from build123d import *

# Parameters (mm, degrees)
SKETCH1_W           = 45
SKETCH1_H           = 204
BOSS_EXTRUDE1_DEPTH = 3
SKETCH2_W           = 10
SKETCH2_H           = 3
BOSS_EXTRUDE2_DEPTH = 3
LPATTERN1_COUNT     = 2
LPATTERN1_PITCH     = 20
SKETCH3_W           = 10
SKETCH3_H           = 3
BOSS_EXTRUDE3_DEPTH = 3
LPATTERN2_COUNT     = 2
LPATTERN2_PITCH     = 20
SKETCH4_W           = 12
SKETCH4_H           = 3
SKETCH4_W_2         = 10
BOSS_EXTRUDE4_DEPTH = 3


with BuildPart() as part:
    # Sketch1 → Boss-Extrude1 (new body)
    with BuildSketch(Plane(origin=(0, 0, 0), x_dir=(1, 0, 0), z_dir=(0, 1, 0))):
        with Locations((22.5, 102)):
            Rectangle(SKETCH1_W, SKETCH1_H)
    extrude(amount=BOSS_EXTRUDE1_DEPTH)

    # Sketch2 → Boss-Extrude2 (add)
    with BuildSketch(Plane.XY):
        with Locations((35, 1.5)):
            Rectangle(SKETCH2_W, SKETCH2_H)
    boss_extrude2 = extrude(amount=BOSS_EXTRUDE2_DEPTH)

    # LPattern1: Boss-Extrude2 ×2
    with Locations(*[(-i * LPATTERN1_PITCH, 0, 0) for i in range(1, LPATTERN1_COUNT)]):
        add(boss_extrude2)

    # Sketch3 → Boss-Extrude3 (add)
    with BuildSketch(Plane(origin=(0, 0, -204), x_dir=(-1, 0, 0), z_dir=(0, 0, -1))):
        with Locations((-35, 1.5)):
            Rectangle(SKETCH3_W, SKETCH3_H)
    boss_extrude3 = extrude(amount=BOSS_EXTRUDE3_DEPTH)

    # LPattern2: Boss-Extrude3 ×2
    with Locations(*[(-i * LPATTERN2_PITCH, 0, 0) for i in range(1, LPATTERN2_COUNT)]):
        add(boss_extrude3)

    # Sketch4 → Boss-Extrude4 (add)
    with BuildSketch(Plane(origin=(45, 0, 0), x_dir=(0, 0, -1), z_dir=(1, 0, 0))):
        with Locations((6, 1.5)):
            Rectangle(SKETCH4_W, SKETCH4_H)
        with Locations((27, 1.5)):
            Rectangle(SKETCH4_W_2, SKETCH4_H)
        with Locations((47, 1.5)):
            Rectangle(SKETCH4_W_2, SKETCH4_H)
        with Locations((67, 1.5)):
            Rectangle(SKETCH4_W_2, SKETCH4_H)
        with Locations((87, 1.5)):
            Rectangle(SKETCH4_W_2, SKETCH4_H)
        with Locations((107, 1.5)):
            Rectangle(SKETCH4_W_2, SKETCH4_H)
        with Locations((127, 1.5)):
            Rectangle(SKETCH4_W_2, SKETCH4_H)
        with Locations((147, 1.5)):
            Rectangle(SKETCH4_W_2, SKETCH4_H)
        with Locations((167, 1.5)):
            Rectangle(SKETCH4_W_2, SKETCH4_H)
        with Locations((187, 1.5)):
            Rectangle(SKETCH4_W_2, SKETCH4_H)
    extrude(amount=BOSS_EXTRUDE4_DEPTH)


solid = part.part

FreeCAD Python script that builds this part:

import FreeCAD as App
import Part
import Sketcher

V = App.Vector


def add_polygon(sketch, points):
    """Adds a closed chain of lines whose ends are joined by coincident constraints."""
    first, n = sketch.GeometryCount, len(points)
    for a, b in zip(points, points[1:] + points[:1]):
        sketch.addGeometry(Part.LineSegment(App.Vector(*a, 0), App.Vector(*b, 0)), False)
    for i in range(n):
        sketch.addConstraint(Sketcher.Constraint("Coincident", first + i, 2, first + (i + 1) % n, 1))

doc = App.newDocument("Part")
params = doc.addObject("Spreadsheet::Sheet", "Params")
for row, (alias, value) in enumerate([
    ("sketch1_width", "45 mm"),
    ("sketch1_height", "204 mm"),
    ("pad1_length", "3 mm"),
    ("sketch2_width", "10 mm"),
    ("sketch2_height", "3 mm"),
    ("pad2_length", "3 mm"),
    ("linearpattern_pitch", "20 mm"),
    ("sketch3_width", "10 mm"),
    ("sketch3_height", "3 mm"),
    ("pad3_length", "3 mm"),
    ("linearpattern2_pitch", "20 mm"),
    ("sketch4_width", "3 mm"),
    ("sketch4_height", "12 mm"),
    ("sketch4_height2", "10 mm"),
    ("pad4_length", "3 mm"),
], start=1):
    params.set(f"A{row}", alias)
    params.set(f"B{row}", "=" + value)
    params.setAlias(f"B{row}", alias)

body = doc.addObject("PartDesign::Body", "Body")

sketch1 = doc.addObject("Sketcher::SketchObject", "Sketch")
body.addObject(sketch1)
sketch1.AttachmentSupport = (doc.XZ_Plane, [""])
sketch1.MapMode = "FlatFace"
add_polygon(sketch1, [(0, -204), (0, 0), (45, 0), (45, -204)])
sketch1.addConstraint([
    Sketcher.Constraint("Vertical", 0),
    Sketcher.Constraint("Horizontal", 1),
    Sketcher.Constraint("Vertical", 2),
    Sketcher.Constraint("Horizontal", 3),
    Sketcher.Constraint("Coincident", 0, 2, -1, 1),
    Sketcher.Constraint("DistanceX", 1, 1, 1, 2, 45.0),
    Sketcher.Constraint("DistanceY", 0, 1, 0, 2, 204.0),
])
sketch1.setExpression("Constraints[9]", "Params.sketch1_width")
sketch1.setExpression("Constraints[10]", "Params.sketch1_height")
pad1 = doc.addObject("PartDesign::Pad", "Pad")
body.addObject(pad1)
pad1.Profile = sketch1
pad1.setExpression("Length", "Params.pad1_length")
pad1.Reversed = True

sketch2 = doc.addObject("Sketcher::SketchObject", "Sketch001")
body.addObject(sketch2)
sketch2.AttachmentSupport = (doc.XY_Plane, [""])
sketch2.MapMode = "FlatFace"
add_polygon(sketch2, [(30, 3), (30, 0), (40, 0), (40, 3)])
sketch2.addConstraint([
    Sketcher.Constraint("Vertical", 0),
    Sketcher.Constraint("Horizontal", 1),
    Sketcher.Constraint("Vertical", 2),
    Sketcher.Constraint("Horizontal", 3),
    Sketcher.Constraint("PointOnObject", 0, 2, -1),
    Sketcher.Constraint("DistanceX", 1, 1, 1, 2, 10.0),
    Sketcher.Constraint("DistanceY", 0, 2, 0, 1, 3.0),
    Sketcher.Constraint("DistanceX", -1, 1, 0, 2, 30.0),
])
sketch2.setExpression("Constraints[9]", "Params.sketch2_width")
sketch2.setExpression("Constraints[10]", "Params.sketch2_height")
pad2 = doc.addObject("PartDesign::Pad", "Pad001")
body.addObject(pad2)
pad2.Profile = sketch2
pad2.setExpression("Length", "Params.pad2_length")
doc.recompute()

linearpattern = doc.addObject("PartDesign::LinearPattern", "LinearPattern")
body.addObject(linearpattern)
linearpattern.Originals = [pad2]
linearpattern.Direction = (doc.X_Axis, [""])
linearpattern.Mode = "offset"
linearpattern.setExpression("Offset", "Params.linearpattern_pitch")
linearpattern.Occurrences = 2
linearpattern.Reversed = True
body.Tip = linearpattern

sketch3 = doc.addObject("Sketcher::SketchObject", "Sketch002")
body.addObject(sketch3)
sketch3.AttachmentSupport = (doc.XY_Plane, [""])
sketch3.MapMode = "FlatFace"
sketch3.AttachmentOffset = App.Placement(V(0, 0, -204), App.Rotation())
add_polygon(sketch3, [(40, 3), (40, 0), (30, 0), (30, 3)])
sketch3.addConstraint([
    Sketcher.Constraint("Vertical", 0),
    Sketcher.Constraint("Horizontal", 1),
    Sketcher.Constraint("Vertical", 2),
    Sketcher.Constraint("Horizontal", 3),
    Sketcher.Constraint("PointOnObject", 0, 2, -1),
    Sketcher.Constraint("DistanceX", 1, 2, 1, 1, 10.0),
    Sketcher.Constraint("DistanceY", 0, 2, 0, 1, 3.0),
    Sketcher.Constraint("DistanceX", -1, 1, 0, 2, 40.0),
])
sketch3.setExpression("Constraints[9]", "Params.sketch3_width")
sketch3.setExpression("Constraints[10]", "Params.sketch3_height")
pad3 = doc.addObject("PartDesign::Pad", "Pad002")
body.addObject(pad3)
pad3.Profile = sketch3
pad3.setExpression("Length", "Params.pad3_length")
pad3.Reversed = True
doc.recompute()

linearpattern2 = doc.addObject("PartDesign::LinearPattern", "LinearPattern001")
body.addObject(linearpattern2)
linearpattern2.Originals = [pad3]
linearpattern2.Direction = (doc.X_Axis, [""])
linearpattern2.Mode = "offset"
linearpattern2.setExpression("Offset", "Params.linearpattern2_pitch")
linearpattern2.Occurrences = 2
linearpattern2.Reversed = True
body.Tip = linearpattern2

sketch4 = doc.addObject("Sketcher::SketchObject", "Sketch003")
body.addObject(sketch4)
sketch4.AttachmentSupport = (doc.YZ_Plane, [""])
sketch4.MapMode = "FlatFace"
sketch4.AttachmentOffset = App.Placement(V(0, 0, 45), App.Rotation())
add_polygon(sketch4, [(3, 0), (0, 0), (0, -12), (3, -12)])
add_polygon(sketch4, [(3, -22), (0, -22), (0, -32), (3, -32)])
add_polygon(sketch4, [(3, -42), (0, -42), (0, -52), (3, -52)])
add_polygon(sketch4, [(3, -62), (0, -62), (0, -72), (3, -72)])
add_polygon(sketch4, [(3, -82), (0, -82), (0, -92), (3, -92)])
add_polygon(sketch4, [(3, -102), (0, -102), (0, -112), (3, -112)])
add_polygon(sketch4, [(3, -122), (0, -122), (0, -132), (3, -132)])
add_polygon(sketch4, [(3, -142), (0, -142), (0, -152), (3, -152)])
add_polygon(sketch4, [(3, -162), (0, -162), (0, -172), (3, -172)])
add_polygon(sketch4, [(3, -182), (0, -182), (0, -192), (3, -192)])
sketch4.addConstraint([
    Sketcher.Constraint("Horizontal", 0),
    Sketcher.Constraint("Vertical", 1),
    Sketcher.Constraint("Horizontal", 2),
    Sketcher.Constraint("Vertical", 3),
    Sketcher.Constraint("Horizontal", 4),
    Sketcher.Constraint("Vertical", 5),
    Sketcher.Constraint("Horizontal", 6),
    Sketcher.Constraint("Vertical", 7),
    Sketcher.Constraint("Horizontal", 8),
    Sketcher.Constraint("Vertical", 9),
    Sketcher.Constraint("Horizontal", 10),
    Sketcher.Constraint("Vertical", 11),
    Sketcher.Constraint("Horizontal", 12),
    Sketcher.Constraint("Vertical", 13),
    Sketcher.Constraint("Horizontal", 14),
    Sketcher.Constraint("Vertical", 15),
    Sketcher.Constraint("Horizontal", 16),
    Sketcher.Constraint("Vertical", 17),
    Sketcher.Constraint("Horizontal", 18),
    Sketcher.Constraint("Vertical", 19),
    Sketcher.Constraint("Horizontal", 20),
    Sketcher.Constraint("Vertical", 21),
    Sketcher.Constraint("Horizontal", 22),
    Sketcher.Constraint("Vertical", 23),
    Sketcher.Constraint("Horizontal", 24),
    Sketcher.Constraint("Vertical", 25),
    Sketcher.Constraint("Horizontal", 26),
    Sketcher.Constraint("Vertical", 27),
    Sketcher.Constraint("Horizontal", 28),
    Sketcher.Constraint("Vertical", 29),
    Sketcher.Constraint("Horizontal", 30),
    Sketcher.Constraint("Vertical", 31),
    Sketcher.Constraint("Horizontal", 32),
    Sketcher.Constraint("Vertical", 33),
    Sketcher.Constraint("Horizontal", 34),
    Sketcher.Constraint("Vertical", 35),
    Sketcher.Constraint("Horizontal", 36),
    Sketcher.Constraint("Vertical", 37),
    Sketcher.Constraint("Horizontal", 38),
    Sketcher.Constraint("Vertical", 39),
    Sketcher.Constraint("Coincident", 0, 2, -1, 1),
    Sketcher.Constraint("PointOnObject", 4, 2, -2),
    Sketcher.Constraint("PointOnObject", 8, 2, -2),
    Sketcher.Constraint("PointOnObject", 12, 2, -2),
    Sketcher.Constraint("PointOnObject", 16, 2, -2),
    Sketcher.Constraint("PointOnObject", 20, 2, -2),
    Sketcher.Constraint("PointOnObject", 24, 2, -2),
    Sketcher.Constraint("PointOnObject", 28, 2, -2),
    Sketcher.Constraint("PointOnObject", 32, 2, -2),
    Sketcher.Constraint("PointOnObject", 36, 2, -2),
    Sketcher.Constraint("Vertical", 3, 2, 6, 2),
    Sketcher.Constraint("Vertical", 7, 2, 10, 2),
    Sketcher.Constraint("Vertical", 11, 2, 14, 2),
    Sketcher.Constraint("Vertical", 15, 2, 18, 2),
    Sketcher.Constraint("Vertical", 19, 2, 22, 2),
    Sketcher.Constraint("Vertical", 23, 2, 26, 2),
    Sketcher.Constraint("Vertical", 27, 2, 30, 2),
    Sketcher.Constraint("Vertical", 31, 2, 34, 2),
    Sketcher.Constraint("Vertical", 35, 2, 38, 2),
    Sketcher.Constraint("Equal", 7, 9),
    Sketcher.Constraint("Equal", 11, 13),
    Sketcher.Constraint("Equal", 15, 17),
    Sketcher.Constraint("Equal", 19, 21),
    Sketcher.Constraint("Equal", 23, 25),
    Sketcher.Constraint("Equal", 27, 29),
    Sketcher.Constraint("Equal", 31, 33),
    Sketcher.Constraint("Equal", 35, 37),
    Sketcher.Constraint("DistanceX", 0, 2, 0, 1, 3.0),
    Sketcher.Constraint("DistanceY", 1, 2, 1, 1, 12.0),
    Sketcher.Constraint("DistanceY", 5, 2, 5, 1, 10.0),
    Sketcher.Constraint("DistanceY", 4, 2, -1, 1, 22.0),
    Sketcher.Constraint("DistanceY", 8, 2, -1, 1, 42.0),
    Sketcher.Constraint("DistanceY", 12, 2, -1, 1, 62.0),
    Sketcher.Constraint("DistanceY", 16, 2, -1, 1, 82.0),
    Sketcher.Constraint("DistanceY", 20, 2, -1, 1, 102.0),
    Sketcher.Constraint("DistanceY", 24, 2, -1, 1, 122.0),
    Sketcher.Constraint("DistanceY", 28, 2, -1, 1, 142.0),
    Sketcher.Constraint("DistanceY", 32, 2, -1, 1, 162.0),
    Sketcher.Constraint("DistanceY", 36, 2, -1, 1, 182.0),
])
sketch4.setExpression("Constraints[107]", "Params.sketch4_width")
sketch4.setExpression("Constraints[108]", "Params.sketch4_height")
sketch4.setExpression("Constraints[109]", "Params.sketch4_height2")
pad4 = doc.addObject("PartDesign::Pad", "Pad003")
body.addObject(pad4)
pad4.Profile = sketch4
pad4.setExpression("Length", "Params.pad4_length")

doc.recompute()
